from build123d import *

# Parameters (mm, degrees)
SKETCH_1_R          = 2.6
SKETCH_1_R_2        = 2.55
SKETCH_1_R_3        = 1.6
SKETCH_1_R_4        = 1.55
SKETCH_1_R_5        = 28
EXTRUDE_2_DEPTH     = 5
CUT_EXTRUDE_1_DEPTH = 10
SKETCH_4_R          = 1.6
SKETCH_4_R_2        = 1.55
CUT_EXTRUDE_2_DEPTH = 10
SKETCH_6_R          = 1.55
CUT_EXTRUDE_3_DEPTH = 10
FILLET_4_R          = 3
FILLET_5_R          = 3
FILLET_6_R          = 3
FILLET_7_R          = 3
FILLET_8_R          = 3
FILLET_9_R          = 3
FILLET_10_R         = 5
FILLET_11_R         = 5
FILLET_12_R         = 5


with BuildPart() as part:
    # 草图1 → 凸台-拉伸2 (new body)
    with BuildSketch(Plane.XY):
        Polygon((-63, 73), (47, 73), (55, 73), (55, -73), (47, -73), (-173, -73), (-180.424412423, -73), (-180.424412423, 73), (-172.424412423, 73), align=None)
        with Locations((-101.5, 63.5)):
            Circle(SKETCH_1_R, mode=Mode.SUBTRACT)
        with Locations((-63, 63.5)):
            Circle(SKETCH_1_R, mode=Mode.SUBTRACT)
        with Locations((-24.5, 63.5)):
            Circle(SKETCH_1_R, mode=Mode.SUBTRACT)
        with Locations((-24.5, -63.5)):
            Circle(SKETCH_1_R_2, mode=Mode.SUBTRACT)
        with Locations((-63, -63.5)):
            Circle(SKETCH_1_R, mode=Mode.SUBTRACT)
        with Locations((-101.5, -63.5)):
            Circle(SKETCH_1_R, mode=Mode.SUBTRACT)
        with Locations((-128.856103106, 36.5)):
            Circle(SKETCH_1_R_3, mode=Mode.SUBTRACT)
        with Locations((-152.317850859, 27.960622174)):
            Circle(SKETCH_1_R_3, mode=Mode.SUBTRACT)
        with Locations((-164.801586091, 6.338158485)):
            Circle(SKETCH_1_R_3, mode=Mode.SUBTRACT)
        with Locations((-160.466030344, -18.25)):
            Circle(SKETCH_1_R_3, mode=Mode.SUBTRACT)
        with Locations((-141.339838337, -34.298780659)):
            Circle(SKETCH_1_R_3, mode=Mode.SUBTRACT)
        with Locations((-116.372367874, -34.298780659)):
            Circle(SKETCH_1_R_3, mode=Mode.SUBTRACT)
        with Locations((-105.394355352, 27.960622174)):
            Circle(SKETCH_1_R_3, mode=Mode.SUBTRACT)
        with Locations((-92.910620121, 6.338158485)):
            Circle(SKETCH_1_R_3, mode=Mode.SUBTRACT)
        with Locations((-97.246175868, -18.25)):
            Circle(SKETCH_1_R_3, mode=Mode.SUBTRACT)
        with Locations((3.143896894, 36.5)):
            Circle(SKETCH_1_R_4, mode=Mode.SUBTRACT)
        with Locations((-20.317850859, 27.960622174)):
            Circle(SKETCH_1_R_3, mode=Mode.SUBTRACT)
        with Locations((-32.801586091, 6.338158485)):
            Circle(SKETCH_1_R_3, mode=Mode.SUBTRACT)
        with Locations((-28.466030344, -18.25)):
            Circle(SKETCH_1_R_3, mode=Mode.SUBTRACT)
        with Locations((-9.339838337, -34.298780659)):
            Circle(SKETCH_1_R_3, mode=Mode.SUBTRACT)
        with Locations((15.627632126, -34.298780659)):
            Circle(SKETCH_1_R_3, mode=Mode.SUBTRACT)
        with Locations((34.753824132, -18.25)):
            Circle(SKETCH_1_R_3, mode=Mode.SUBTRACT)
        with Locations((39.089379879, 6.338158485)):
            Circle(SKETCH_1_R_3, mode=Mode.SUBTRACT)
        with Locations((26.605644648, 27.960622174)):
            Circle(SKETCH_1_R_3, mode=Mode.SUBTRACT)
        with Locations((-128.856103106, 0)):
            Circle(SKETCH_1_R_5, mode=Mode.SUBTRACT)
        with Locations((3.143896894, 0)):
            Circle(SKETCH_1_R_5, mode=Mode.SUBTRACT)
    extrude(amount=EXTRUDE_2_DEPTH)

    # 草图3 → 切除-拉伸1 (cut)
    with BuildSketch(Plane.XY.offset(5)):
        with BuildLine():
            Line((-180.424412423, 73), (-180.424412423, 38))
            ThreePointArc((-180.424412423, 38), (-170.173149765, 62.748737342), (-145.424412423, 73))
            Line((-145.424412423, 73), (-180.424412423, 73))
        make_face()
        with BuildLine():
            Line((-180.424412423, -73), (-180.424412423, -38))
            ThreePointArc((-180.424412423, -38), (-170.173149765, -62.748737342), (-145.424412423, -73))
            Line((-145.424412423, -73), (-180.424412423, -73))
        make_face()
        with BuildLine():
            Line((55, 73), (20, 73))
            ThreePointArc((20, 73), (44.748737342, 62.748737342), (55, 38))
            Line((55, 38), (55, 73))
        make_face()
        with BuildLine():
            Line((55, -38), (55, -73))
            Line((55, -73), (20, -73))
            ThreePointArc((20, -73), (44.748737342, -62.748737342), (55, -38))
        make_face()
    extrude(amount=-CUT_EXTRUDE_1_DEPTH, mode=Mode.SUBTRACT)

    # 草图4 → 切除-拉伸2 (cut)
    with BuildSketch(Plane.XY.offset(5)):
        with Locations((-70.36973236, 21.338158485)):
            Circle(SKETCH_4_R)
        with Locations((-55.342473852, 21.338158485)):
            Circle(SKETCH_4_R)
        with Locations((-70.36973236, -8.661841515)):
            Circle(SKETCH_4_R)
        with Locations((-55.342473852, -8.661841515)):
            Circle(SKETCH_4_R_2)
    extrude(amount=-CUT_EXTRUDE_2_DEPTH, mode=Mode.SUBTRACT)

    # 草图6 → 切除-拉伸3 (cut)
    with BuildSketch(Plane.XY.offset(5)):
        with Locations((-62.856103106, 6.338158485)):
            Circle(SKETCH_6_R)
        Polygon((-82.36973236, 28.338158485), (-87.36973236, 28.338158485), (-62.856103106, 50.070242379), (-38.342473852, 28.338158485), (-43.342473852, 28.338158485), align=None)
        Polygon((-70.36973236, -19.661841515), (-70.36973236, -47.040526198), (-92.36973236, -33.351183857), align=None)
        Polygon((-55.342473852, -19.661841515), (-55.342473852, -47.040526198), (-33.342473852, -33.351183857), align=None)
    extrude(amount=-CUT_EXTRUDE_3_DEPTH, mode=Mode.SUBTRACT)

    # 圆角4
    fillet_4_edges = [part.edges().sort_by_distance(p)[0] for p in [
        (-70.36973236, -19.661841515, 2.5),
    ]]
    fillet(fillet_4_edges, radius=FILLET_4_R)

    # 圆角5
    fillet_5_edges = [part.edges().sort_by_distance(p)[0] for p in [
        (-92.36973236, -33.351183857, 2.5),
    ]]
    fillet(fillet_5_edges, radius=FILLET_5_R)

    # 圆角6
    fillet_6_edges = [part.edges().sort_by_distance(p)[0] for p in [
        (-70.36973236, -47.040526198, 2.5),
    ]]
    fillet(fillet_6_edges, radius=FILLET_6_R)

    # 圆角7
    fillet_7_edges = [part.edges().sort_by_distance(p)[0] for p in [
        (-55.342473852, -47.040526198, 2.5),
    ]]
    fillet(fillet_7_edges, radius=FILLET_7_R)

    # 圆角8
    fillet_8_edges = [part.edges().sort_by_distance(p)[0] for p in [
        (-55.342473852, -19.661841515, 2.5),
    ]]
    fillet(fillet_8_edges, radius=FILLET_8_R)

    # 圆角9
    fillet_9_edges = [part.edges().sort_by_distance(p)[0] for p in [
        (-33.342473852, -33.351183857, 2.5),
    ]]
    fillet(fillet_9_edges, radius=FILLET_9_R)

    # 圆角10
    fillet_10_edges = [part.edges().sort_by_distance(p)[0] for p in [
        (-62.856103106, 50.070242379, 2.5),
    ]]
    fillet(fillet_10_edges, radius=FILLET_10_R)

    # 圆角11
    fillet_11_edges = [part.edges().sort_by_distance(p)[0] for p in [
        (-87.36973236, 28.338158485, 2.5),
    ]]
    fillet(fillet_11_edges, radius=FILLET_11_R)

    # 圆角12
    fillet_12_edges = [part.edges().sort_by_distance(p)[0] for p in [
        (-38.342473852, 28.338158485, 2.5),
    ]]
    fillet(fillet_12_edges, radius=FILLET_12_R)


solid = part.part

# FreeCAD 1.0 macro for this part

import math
import FreeCAD as App
import Part
import Sketcher

V = App.Vector
Q = App.Units.Quantity


def edges_at(feature, points):
    """Names of the edges that pass closest to the given points."""
    edges = feature.Shape.Edges
    near = lambda p: min(range(len(edges)), key=lambda i: edges[i].distToShape(Part.Vertex(*p))[0])
    return sorted({f"Edge{near(p) + 1}" for p in points})

doc = App.newDocument("Part")
body = doc.addObject("PartDesign::Body", "Body")

# Sketch on XY plane
sketch1 = doc.addObject("Sketcher::SketchObject", "Sketch")
body.addObject(sketch1)
sketch1.AttachmentSupport = (doc.XY_Plane, [""])
sketch1.MapMode = "FlatFace"
sketch1.addGeometry([
    Part.LineSegment(V(55, 73, 0), V(-180.4, 73, 0)),  # 0
    Part.LineSegment(V(-180.4, 73, 0), V(-180.4, -73, 0)),  # 1
    Part.LineSegment(V(-180.4, -73, 0), V(55, -73, 0)),  # 2
    Part.LineSegment(V(55, -73, 0), V(55, 73, 0)),  # 3
    Part.Circle(V(15.6, -34.3, 0), V(0, 0, 1), 1.6),  # 4
    Part.Circle(V(-9.3, -34.3, 0), V(0, 0, 1), 1.6),  # 5
    Part.Circle(V(-24.5, -63.5, 0), V(0, 0, 1), 2.5),  # 6
    Part.Circle(V(34.8, -18.2, 0), V(0, 0, 1), 1.6),  # 7
    Part.Circle(V(-28.5, -18.2, 0), V(0, 0, 1), 1.6),  # 8
    Part.Circle(V(-63, -63.5, 0), V(0, 0, 1), 2.6),  # 9
    Part.Circle(V(-101.5, -63.5, 0), V(0, 0, 1), 2.6),  # 10
    Part.Circle(V(-116.4, -34.3, 0), V(0, 0, 1), 1.6),  # 11
    Part.Circle(V(-141.3, -34.3, 0), V(0, 0, 1), 1.6),  # 12
    Part.Circle(V(-97.2, -18.2, 0), V(0, 0, 1), 1.6),  # 13
    Part.Circle(V(-160.5, -18.2, 0), V(0, 0, 1), 1.6),  # 14
    Part.Circle(V(39.1, 6.3, 0), V(0, 0, 1), 1.6),  # 15
    Part.Circle(V(3.1, 0, 0), V(0, 0, 1), 28),  # 16
    Part.Circle(V(26.6, 28, 0), V(0, 0, 1), 1.6),  # 17
    Part.Circle(V(-32.8, 6.3, 0), V(0, 0, 1), 1.6),  # 18
    Part.Circle(V(-20.3, 28, 0), V(0, 0, 1), 1.6),  # 19
    Part.Circle(V(3.1, 36.5, 0), V(0, 0, 1), 1.6),  # 20
    Part.Circle(V(-24.5, 63.5, 0), V(0, 0, 1), 2.6),  # 21
    Part.Circle(V(-92.9, 6.3, 0), V(0, 0, 1), 1.6),  # 22
    Part.Circle(V(-105.4, 28, 0), V(0, 0, 1), 1.6),  # 23
    Part.Circle(V(-128.9, 0, 0), V(0, 0, 1), 28),  # 24
    Part.Circle(V(-164.8, 6.3, 0), V(0, 0, 1), 1.6),  # 25
    Part.Circle(V(-152.3, 28, 0), V(0, 0, 1), 1.6),  # 26
    Part.Circle(V(-63, 63.5, 0), V(0, 0, 1), 2.6),  # 27
    Part.Circle(V(-101.5, 63.5, 0), V(0, 0, 1), 2.6),  # 28
    Part.Circle(V(-128.9, 36.5, 0), V(0, 0, 1), 1.6),  # 29
], False)
sketch1.addConstraint([
    Sketcher.Constraint("Coincident", 0, 2, 1, 1),
    Sketcher.Constraint("Coincident", 1, 2, 2, 1),
    Sketcher.Constraint("Coincident", 2, 2, 3, 1),
    Sketcher.Constraint("Coincident", 3, 2, 0, 1),
    Sketcher.Constraint("Horizontal", 0),
    Sketcher.Constraint("Vertical", 1),
    Sketcher.Constraint("Horizontal", 2),
    Sketcher.Constraint("Vertical", 3),
    Sketcher.Constraint("Equal", 4, 5),
    Sketcher.Constraint("Equal", 5, 7),
    Sketcher.Constraint("Equal", 7, 8),
    Sketcher.Constraint("Equal", 9, 10),
    Sketcher.Constraint("Equal", 8, 11),
    Sketcher.Constraint("Equal", 11, 12),
    Sketcher.Constraint("Equal", 12, 13),
    Sketcher.Constraint("Equal", 13, 14),
    Sketcher.Constraint("Equal", 14, 15),
    Sketcher.Constraint("Equal", 15, 17),
    Sketcher.Constraint("Equal", 17, 18),
    Sketcher.Constraint("Equal", 18, 19),
    Sketcher.Constraint("Equal", 10, 21),
    Sketcher.Constraint("Equal", 19, 22),
    Sketcher.Constraint("Equal", 22, 23),
    Sketcher.Constraint("Equal", 16, 24),
    Sketcher.Constraint("Equal", 23, 25),
    Sketcher.Constraint("Equal", 25, 26),
    Sketcher.Constraint("Equal", 21, 27),
    Sketcher.Constraint("Equal", 27, 28),
    Sketcher.Constraint("Equal", 26, 29),
    Sketcher.Constraint("Symmetric", 6, 3, 21, 3, -1),
    Sketcher.Constraint("Symmetric", 9, 3, 27, 3, -1),
    Sketcher.Constraint("Symmetric", 10, 3, 28, 3, -1),
    Sketcher.Constraint("PointOnObject", 16, 3, -1),
    Sketcher.Constraint("PointOnObject", 24, 3, -1),
    Sketcher.Constraint("Horizontal", 4, 3, 5, 3),
    Sketcher.Constraint("Horizontal", 7, 3, 8, 3),
    Sketcher.Constraint("Horizontal", 6, 3, 9, 3),
    Sketcher.Constraint("Horizontal", 9, 3, 10, 3),
    Sketcher.Constraint("Horizontal", 5, 3, 11, 3),
    Sketcher.Constraint("Horizontal", 11, 3, 12, 3),
    Sketcher.Constraint("Horizontal", 8, 3, 13, 3),
    Sketcher.Constraint("Horizontal", 13, 3, 14, 3),
    Sketcher.Constraint("Horizontal", 15, 3, 18, 3),
    Sketcher.Constraint("Horizontal", 17, 3, 19, 3),
    Sketcher.Constraint("Horizontal", 18, 3, 22, 3),
    Sketcher.Constraint("Horizontal", 19, 3, 23, 3),
    Sketcher.Constraint("Horizontal", 22, 3, 25, 3),
    Sketcher.Constraint("Horizontal", 23, 3, 26, 3),
    Sketcher.Constraint("Horizontal", 20, 3, 29, 3),
    Sketcher.Constraint("Vertical", 16, 3, 20, 3),
    Sketcher.Constraint("Vertical", 24, 3, 29, 3),
    Sketcher.Constraint("Diameter", 16, Q("56 mm")),
    Sketcher.Constraint("Diameter", 4, Q("3.2 mm")),
    Sketcher.Constraint("Diameter", 6, Q("5.1 mm")),
    Sketcher.Constraint("Diameter", 9, Q("5.2 mm")),
    Sketcher.Constraint("Diameter", 20, Q("3.1 mm")),
    Sketcher.Constraint("DistanceY", 1, 2, 1, 1, Q("146 mm")),
    Sketcher.Constraint("DistanceX", 9, 3, -1, 1, Q("63 mm")),
    Sketcher.Constraint("DistanceY", -1, 1, 0, 2, Q("73 mm")),
    Sketcher.Constraint("DistanceX", -1, 1, 2, 2, Q("55 mm")),
    Sketcher.Constraint("DistanceX", 10, 3, 6, 3, Q("77 mm")),
    Sketcher.Constraint("DistanceY", 20, 3, 21, 3, Q("27 mm")),
    Sketcher.Constraint("DistanceX", 6, 3, -1, 1, Q("24.5 mm")),
    Sketcher.Constraint("DistanceY", 6, 3, -1, 1, Q("63.5 mm")),
    Sketcher.Constraint("DistanceY", 7, 3, -1, 1, Q("18.25 mm")),
    Sketcher.Constraint("DistanceX", 0, 2, 0, 1, Q("235.424412 mm")),
    Sketcher.Constraint("DistanceY", 4, 3, -1, 1, Q("34.298781 mm")),
    Sketcher.Constraint("DistanceX", 5, 3, -1, 1, Q("9.339838 mm")),
    Sketcher.Constraint("DistanceX", 8, 3, -1, 1, Q("28.46603 mm")),
    Sketcher.Constraint("DistanceX", 12, 3, -1, 1, Q("141.339838 mm")),
    Sketcher.Constraint("DistanceX", 14, 3, -1, 1, Q("160.46603 mm")),
    Sketcher.Constraint("DistanceX", -1, 1, 15, 3, Q("39.08938 mm")),
    Sketcher.Constraint("DistanceY", -1, 1, 15, 3, Q("6.338158 mm")),
    Sketcher.Constraint("DistanceX", 19, 3, -1, 1, Q("20.317851 mm")),
    Sketcher.Constraint("DistanceX", 22, 3, -1, 1, Q("92.91062 mm")),
    Sketcher.Constraint("DistanceX", 26, 3, -1, 1, Q("152.317851 mm")),
    Sketcher.Constraint("DistanceX", 5, 3, 4, 3, Q("24.96747 mm")),
    Sketcher.Constraint("DistanceX", 11, 3, 5, 3, Q("107.03253 mm")),
    Sketcher.Constraint("DistanceX", 17, 3, 7, 3, Q("8.148179 mm")),
    Sketcher.Constraint("DistanceX", 18, 3, 17, 3, Q("59.407231 mm")),
    Sketcher.Constraint("DistanceX", 18, 3, 4, 3, Q("48.429218 mm")),
    Sketcher.Constraint("DistanceX", 23, 3, 13, 3, Q("8.148179 mm")),
    Sketcher.Constraint("DistanceX", 25, 3, 23, 3, Q("59.407231 mm")),
    Sketcher.Constraint("DistanceX", 25, 3, 11, 3, Q("48.429218 mm")),
    Sketcher.Constraint("DistanceX", 0, 2, 29, 3, Q("51.568309 mm")),
    Sketcher.Constraint("DistanceX", -1, 1, 16, 3, Q("3.143897 mm")),
    Sketcher.Constraint("DistanceY", -1, 1, 17, 3, Q("27.960622 mm")),
])
pad1 = doc.addObject("PartDesign::Pad", "Pad")
body.addObject(pad1)
pad1.Profile = sketch1
pad1.Length = 5

# Sketch on XY plane
sketch2 = doc.addObject("Sketcher::SketchObject", "Sketch001")
body.addObject(sketch2)
sketch2.AttachmentSupport = (doc.XY_Plane, [""])
sketch2.MapMode = "FlatFace"
sketch2.AttachmentOffset = App.Placement(V(0, 0, 5), App.Rotation())
sketch2.addGeometry([
    Part.LineSegment(V(-180, 73, 0), V(-180, 38, 0)),  # 0
    Part.ArcOfCircle(Part.Circle(V(-145, 38, 0), V(0, 0, 1), 35), math.radians(90), math.radians(180)),  # 1
    Part.LineSegment(V(-145, 73, 0), V(-180, 73, 0)),  # 2
    Part.LineSegment(V(-180, -38, 0), V(-180, -73, 0)),  # 3
    Part.LineSegment(V(-180, -73, 0), V(-145, -73, 0)),  # 4
    Part.ArcOfCircle(Part.Circle(V(-145, -38, 0), V(0, 0, 1), 35), math.radians(180), math.radians(270)),  # 5
    Part.LineSegment(V(55, 73, 0), V(20, 73, 0)),  # 6
    Part.ArcOfCircle(Part.Circle(V(20, 38, 0), V(0, 0, 1), 35), math.radians(0), math.radians(90)),  # 7
    Part.LineSegment(V(55, 38, 0), V(55, 73, 0)),  # 8
    Part.LineSegment(V(55, -73, 0), V(55, -38, 0)),  # 9
    Part.ArcOfCircle(Part.Circle(V(20, -38, 0), V(0, 0, 1), 35), math.radians(-90), math.radians(0)),  # 10
    Part.LineSegment(V(20, -73, 0), V(55, -73, 0)),  # 11
], False)
sketch2.addConstraint([
    Sketcher.Constraint("Tangent", 0, 2, 1, 2),
    Sketcher.Constraint("Tangent", 1, 1, 2, 1),
    Sketcher.Constraint("Coincident", 2, 2, 0, 1),
    Sketcher.Constraint("Coincident", 3, 2, 4, 1),
    Sketcher.Constraint("Tangent", 4, 2, 5, 2),
    Sketcher.Constraint("Tangent", 5, 1, 3, 1),
    Sketcher.Constraint("Tangent", 6, 2, 7, 2),
    Sketcher.Constraint("Tangent", 7, 1, 8, 1),
    Sketcher.Constraint("Coincident", 8, 2, 6, 1),
    Sketcher.Constraint("Tangent", 9, 2, 10, 2),
    Sketcher.Constraint("Tangent", 10, 1, 11, 1),
    Sketcher.Constraint("Coincident", 11, 2, 9, 1),
    Sketcher.Constraint("Vertical", 0),
    Sketcher.Constraint("Horizontal", 2),
    Sketcher.Constraint("Vertical", 3),
    Sketcher.Constraint("Horizontal", 4),
    Sketcher.Constraint("Horizontal", 6),
    Sketcher.Constraint("Vertical", 8),
    Sketcher.Constraint("Vertical", 9),
    Sketcher.Constraint("Horizontal", 11),
    Sketcher.Constraint("Equal", 1, 5),
    Sketcher.Constraint("Equal", 5, 7),
    Sketcher.Constraint("Equal", 7, 10),
    Sketcher.Constraint("Symmetric", 1, 3, 5, 3, -1),
    Sketcher.Constraint("Symmetric", 7, 3, 10, 3, -1),
    Sketcher.Constraint("Horizontal", 1, 3, 7, 3),
    Sketcher.Constraint("Radius", 1, Q("35 mm")),
    Sketcher.Constraint("DistanceY", -1, 1, 1, 3, Q("38 mm")),
    Sketcher.Constraint("DistanceX", -1, 1, 7, 3, Q("20 mm")),
    Sketcher.Constraint("DistanceX", 1, 3, -1, 1, Q("145.424412 mm")),
])
pocket1 = doc.addObject("PartDesign::Pocket", "Pocket")
body.addObject(pocket1)
pocket1.Profile = sketch2
pocket1.Length = 10

# Sketch on XY plane
sketch3 = doc.addObject("Sketcher::SketchObject", "Sketch002")
body.addObject(sketch3)
sketch3.AttachmentSupport = (doc.XY_Plane, [""])
sketch3.MapMode = "FlatFace"
sketch3.AttachmentOffset = App.Placement(V(0, 0, 5), App.Rotation())
sketch3.addGeometry([
    Part.Circle(V(-70.4, 21.3, 0), V(0, 0, 1), 1.6),
    Part.Circle(V(-55.3, 21.3, 0), V(0, 0, 1), 1.6),
    Part.Circle(V(-70.4, -8.7, 0), V(0, 0, 1), 1.6),
    Part.Circle(V(-55.3, -8.7, 0), V(0, 0, 1), 1.6),
], False)
sketch3.addConstraint([
    Sketcher.Constraint("Equal", 0, 1),
    Sketcher.Constraint("Equal", 1, 2),
    Sketcher.Constraint("Horizontal", 0, 3, 1, 3),
    Sketcher.Constraint("Horizontal", 2, 3, 3, 3),
    Sketcher.Constraint("Vertical", 0, 3, 2, 3),
    Sketcher.Constraint("Vertical", 1, 3, 3, 3),
    Sketcher.Constraint("Diameter", 0, Q("3.2 mm")),
    Sketcher.Constraint("Diameter", 3, Q("3.1 mm")),
    Sketcher.Constraint("DistanceY", 2, 3, 0, 3, Q("30 mm")),
    Sketcher.Constraint("DistanceY", -1, 1, 0, 3, Q("21.338158 mm")),
    Sketcher.Constraint("DistanceX", 0, 3, 1, 3, Q("15.027259 mm")),
    Sketcher.Constraint("DistanceX", 0, 3, -1, 1, Q("70.369732 mm")),
])
pocket2 = doc.addObject("PartDesign::Pocket", "Pocket001")
body.addObject(pocket2)
pocket2.Profile = sketch3
pocket2.Length = 10

# Sketch on XY plane
sketch4 = doc.addObject("Sketcher::SketchObject", "Sketch003")
body.addObject(sketch4)
sketch4.AttachmentSupport = (doc.XY_Plane, [""])
sketch4.MapMode = "FlatFace"
sketch4.AttachmentOffset = App.Placement(V(0, 0, 5), App.Rotation())
sketch4.addGeometry([
    Part.Circle(V(-62.9, 6.3, 0), V(0, 0, 1), 1.6),  # 0
    Part.LineSegment(V(-87.4, 28.3, 0), V(-38.3, 28.3, 0)),  # 1
    Part.LineSegment(V(-38.3, 28.3, 0), V(-62.9, 50.1, 0)),  # 2
    Part.LineSegment(V(-62.9, 50.1, 0), V(-87.4, 28.3, 0)),  # 3
    Part.LineSegment(V(-70.4, -47, 0), V(-70.4, -19.7, 0)),  # 4
    Part.LineSegment(V(-70.4, -19.7, 0), V(-92.4, -33.4, 0)),  # 5
    Part.LineSegment(V(-92.4, -33.4, 0), V(-70.4, -47, 0)),  # 6
    Part.LineSegment(V(-55.3, -19.7, 0), V(-55.3, -47, 0)),  # 7
    Part.LineSegment(V(-55.3, -47, 0), V(-33.3, -33.4, 0)),  # 8
    Part.LineSegment(V(-33.3, -33.4, 0), V(-55.3, -19.7, 0)),  # 9
], False)
sketch4.addConstraint([
    Sketcher.Constraint("Coincident", 1, 2, 2, 1),
    Sketcher.Constraint("Coincident", 2, 2, 3, 1),
    Sketcher.Constraint("Coincident", 3, 2, 1, 1),
    Sketcher.Constraint("Coincident", 4, 2, 5, 1),
    Sketcher.Constraint("Coincident", 5, 2, 6, 1),
    Sketcher.Constraint("Coincident", 6, 2, 4, 1),
    Sketcher.Constraint("Coincident", 7, 2, 8, 1),
    Sketcher.Constraint("Coincident", 8, 2, 9, 1),
    Sketcher.Constraint("Coincident", 9, 2, 7, 1),
    Sketcher.Constraint("Horizontal", 1),
    Sketcher.Constraint("Vertical", 4),
    Sketcher.Constraint("Vertical", 7),
    Sketcher.Constraint("Parallel", 5, 8),
    Sketcher.Constraint("Parallel", 6, 9),
    Sketcher.Constraint("Horizontal", 6, 2, 7, 2),
    Sketcher.Constraint("Horizontal", 5, 2, 8, 2),
    Sketcher.Constraint("Horizontal", 4, 2, 9, 2),
    Sketcher.Constraint("Vertical", 0, 3, 2, 2),
    Sketcher.Constraint("Equal", 2, 3),
    Sketcher.Constraint("Diameter", 0, Q("3.1 mm")),
    Sketcher.Constraint("DistanceY", 0, 3, 1, 2, Q("22 mm")),
    Sketcher.Constraint("DistanceY", 4, 2, 0, 3, Q("26 mm")),
    Sketcher.Constraint("DistanceX", 3, 2, 4, 2, Q("17 mm")),
    Sketcher.Constraint("DistanceX", 5, 2, 4, 2, Q("22 mm")),
    Sketcher.Constraint("DistanceX", 7, 2, 1, 2, Q("17 mm")),
    Sketcher.Constraint("DistanceX", 1, 1, 1, 2, Q("49.027259 mm")),
    Sketcher.Constraint("Distance", 5, Q("25.911351 mm")),
    Sketcher.Constraint("DistanceY", -1, 1, 0, 3, Q("6.338158 mm")),
    Sketcher.Constraint("Distance", 2, Q("32.759754 mm")),
    Sketcher.Constraint("DistanceX", 0, 3, -1, 1, Q("62.856103 mm")),
])
pocket3 = doc.addObject("PartDesign::Pocket", "Pocket002")
body.addObject(pocket3)
pocket3.Profile = sketch4
pocket3.Length = 10
doc.recompute()

fillet = doc.addObject("PartDesign::Fillet", "Fillet")
body.addObject(fillet)
fillet.Base = (pocket3, edges_at(pocket3, [(-70.37, -19.662, 2.5)]))
fillet.Radius = 3
doc.recompute()

fillet2 = doc.addObject("PartDesign::Fillet", "Fillet001")
body.addObject(fillet2)
fillet2.Base = (fillet, edges_at(fillet, [(-92.37, -33.351, 2.5)]))
fillet2.Radius = 3
doc.recompute()

fillet3 = doc.addObject("PartDesign::Fillet", "Fillet002")
body.addObject(fillet3)
fillet3.Base = (fillet2, edges_at(fillet2, [(-70.37, -47.041, 2.5)]))
fillet3.Radius = 3
doc.recompute()

fillet4 = doc.addObject("PartDesign::Fillet", "Fillet003")
body.addObject(fillet4)
fillet4.Base = (fillet3, edges_at(fillet3, [(-55.342, -47.041, 2.5)]))
fillet4.Radius = 3
doc.recompute()

fillet5 = doc.addObject("PartDesign::Fillet", "Fillet004")
body.addObject(fillet5)
fillet5.Base = (fillet4, edges_at(fillet4, [(-55.342, -19.662, 2.5)]))
fillet5.Radius = 3
doc.recompute()

fillet6 = doc.addObject("PartDesign::Fillet", "Fillet005")
body.addObject(fillet6)
fillet6.Base = (fillet5, edges_at(fillet5, [(-33.342, -33.351, 2.5)]))
fillet6.Radius = 3
doc.recompute()

fillet7 = doc.addObject("PartDesign::Fillet", "Fillet006")
body.addObject(fillet7)
fillet7.Base = (fillet6, edges_at(fillet6, [(-62.856, 50.07, 2.5)]))
fillet7.Radius = 5
doc.recompute()

fillet8 = doc.addObject("PartDesign::Fillet", "Fillet007")
body.addObject(fillet8)
fillet8.Base = (fillet7, edges_at(fillet7, [(-87.37, 28.338, 2.5)]))
fillet8.Radius = 5
doc.recompute()

fillet9 = doc.addObject("PartDesign::Fillet", "Fillet008")
body.addObject(fillet9)
fillet9.Base = (fillet8, edges_at(fillet8, [(-38.342, 28.338, 2.5)]))
fillet9.Radius = 5

doc.recompute()
